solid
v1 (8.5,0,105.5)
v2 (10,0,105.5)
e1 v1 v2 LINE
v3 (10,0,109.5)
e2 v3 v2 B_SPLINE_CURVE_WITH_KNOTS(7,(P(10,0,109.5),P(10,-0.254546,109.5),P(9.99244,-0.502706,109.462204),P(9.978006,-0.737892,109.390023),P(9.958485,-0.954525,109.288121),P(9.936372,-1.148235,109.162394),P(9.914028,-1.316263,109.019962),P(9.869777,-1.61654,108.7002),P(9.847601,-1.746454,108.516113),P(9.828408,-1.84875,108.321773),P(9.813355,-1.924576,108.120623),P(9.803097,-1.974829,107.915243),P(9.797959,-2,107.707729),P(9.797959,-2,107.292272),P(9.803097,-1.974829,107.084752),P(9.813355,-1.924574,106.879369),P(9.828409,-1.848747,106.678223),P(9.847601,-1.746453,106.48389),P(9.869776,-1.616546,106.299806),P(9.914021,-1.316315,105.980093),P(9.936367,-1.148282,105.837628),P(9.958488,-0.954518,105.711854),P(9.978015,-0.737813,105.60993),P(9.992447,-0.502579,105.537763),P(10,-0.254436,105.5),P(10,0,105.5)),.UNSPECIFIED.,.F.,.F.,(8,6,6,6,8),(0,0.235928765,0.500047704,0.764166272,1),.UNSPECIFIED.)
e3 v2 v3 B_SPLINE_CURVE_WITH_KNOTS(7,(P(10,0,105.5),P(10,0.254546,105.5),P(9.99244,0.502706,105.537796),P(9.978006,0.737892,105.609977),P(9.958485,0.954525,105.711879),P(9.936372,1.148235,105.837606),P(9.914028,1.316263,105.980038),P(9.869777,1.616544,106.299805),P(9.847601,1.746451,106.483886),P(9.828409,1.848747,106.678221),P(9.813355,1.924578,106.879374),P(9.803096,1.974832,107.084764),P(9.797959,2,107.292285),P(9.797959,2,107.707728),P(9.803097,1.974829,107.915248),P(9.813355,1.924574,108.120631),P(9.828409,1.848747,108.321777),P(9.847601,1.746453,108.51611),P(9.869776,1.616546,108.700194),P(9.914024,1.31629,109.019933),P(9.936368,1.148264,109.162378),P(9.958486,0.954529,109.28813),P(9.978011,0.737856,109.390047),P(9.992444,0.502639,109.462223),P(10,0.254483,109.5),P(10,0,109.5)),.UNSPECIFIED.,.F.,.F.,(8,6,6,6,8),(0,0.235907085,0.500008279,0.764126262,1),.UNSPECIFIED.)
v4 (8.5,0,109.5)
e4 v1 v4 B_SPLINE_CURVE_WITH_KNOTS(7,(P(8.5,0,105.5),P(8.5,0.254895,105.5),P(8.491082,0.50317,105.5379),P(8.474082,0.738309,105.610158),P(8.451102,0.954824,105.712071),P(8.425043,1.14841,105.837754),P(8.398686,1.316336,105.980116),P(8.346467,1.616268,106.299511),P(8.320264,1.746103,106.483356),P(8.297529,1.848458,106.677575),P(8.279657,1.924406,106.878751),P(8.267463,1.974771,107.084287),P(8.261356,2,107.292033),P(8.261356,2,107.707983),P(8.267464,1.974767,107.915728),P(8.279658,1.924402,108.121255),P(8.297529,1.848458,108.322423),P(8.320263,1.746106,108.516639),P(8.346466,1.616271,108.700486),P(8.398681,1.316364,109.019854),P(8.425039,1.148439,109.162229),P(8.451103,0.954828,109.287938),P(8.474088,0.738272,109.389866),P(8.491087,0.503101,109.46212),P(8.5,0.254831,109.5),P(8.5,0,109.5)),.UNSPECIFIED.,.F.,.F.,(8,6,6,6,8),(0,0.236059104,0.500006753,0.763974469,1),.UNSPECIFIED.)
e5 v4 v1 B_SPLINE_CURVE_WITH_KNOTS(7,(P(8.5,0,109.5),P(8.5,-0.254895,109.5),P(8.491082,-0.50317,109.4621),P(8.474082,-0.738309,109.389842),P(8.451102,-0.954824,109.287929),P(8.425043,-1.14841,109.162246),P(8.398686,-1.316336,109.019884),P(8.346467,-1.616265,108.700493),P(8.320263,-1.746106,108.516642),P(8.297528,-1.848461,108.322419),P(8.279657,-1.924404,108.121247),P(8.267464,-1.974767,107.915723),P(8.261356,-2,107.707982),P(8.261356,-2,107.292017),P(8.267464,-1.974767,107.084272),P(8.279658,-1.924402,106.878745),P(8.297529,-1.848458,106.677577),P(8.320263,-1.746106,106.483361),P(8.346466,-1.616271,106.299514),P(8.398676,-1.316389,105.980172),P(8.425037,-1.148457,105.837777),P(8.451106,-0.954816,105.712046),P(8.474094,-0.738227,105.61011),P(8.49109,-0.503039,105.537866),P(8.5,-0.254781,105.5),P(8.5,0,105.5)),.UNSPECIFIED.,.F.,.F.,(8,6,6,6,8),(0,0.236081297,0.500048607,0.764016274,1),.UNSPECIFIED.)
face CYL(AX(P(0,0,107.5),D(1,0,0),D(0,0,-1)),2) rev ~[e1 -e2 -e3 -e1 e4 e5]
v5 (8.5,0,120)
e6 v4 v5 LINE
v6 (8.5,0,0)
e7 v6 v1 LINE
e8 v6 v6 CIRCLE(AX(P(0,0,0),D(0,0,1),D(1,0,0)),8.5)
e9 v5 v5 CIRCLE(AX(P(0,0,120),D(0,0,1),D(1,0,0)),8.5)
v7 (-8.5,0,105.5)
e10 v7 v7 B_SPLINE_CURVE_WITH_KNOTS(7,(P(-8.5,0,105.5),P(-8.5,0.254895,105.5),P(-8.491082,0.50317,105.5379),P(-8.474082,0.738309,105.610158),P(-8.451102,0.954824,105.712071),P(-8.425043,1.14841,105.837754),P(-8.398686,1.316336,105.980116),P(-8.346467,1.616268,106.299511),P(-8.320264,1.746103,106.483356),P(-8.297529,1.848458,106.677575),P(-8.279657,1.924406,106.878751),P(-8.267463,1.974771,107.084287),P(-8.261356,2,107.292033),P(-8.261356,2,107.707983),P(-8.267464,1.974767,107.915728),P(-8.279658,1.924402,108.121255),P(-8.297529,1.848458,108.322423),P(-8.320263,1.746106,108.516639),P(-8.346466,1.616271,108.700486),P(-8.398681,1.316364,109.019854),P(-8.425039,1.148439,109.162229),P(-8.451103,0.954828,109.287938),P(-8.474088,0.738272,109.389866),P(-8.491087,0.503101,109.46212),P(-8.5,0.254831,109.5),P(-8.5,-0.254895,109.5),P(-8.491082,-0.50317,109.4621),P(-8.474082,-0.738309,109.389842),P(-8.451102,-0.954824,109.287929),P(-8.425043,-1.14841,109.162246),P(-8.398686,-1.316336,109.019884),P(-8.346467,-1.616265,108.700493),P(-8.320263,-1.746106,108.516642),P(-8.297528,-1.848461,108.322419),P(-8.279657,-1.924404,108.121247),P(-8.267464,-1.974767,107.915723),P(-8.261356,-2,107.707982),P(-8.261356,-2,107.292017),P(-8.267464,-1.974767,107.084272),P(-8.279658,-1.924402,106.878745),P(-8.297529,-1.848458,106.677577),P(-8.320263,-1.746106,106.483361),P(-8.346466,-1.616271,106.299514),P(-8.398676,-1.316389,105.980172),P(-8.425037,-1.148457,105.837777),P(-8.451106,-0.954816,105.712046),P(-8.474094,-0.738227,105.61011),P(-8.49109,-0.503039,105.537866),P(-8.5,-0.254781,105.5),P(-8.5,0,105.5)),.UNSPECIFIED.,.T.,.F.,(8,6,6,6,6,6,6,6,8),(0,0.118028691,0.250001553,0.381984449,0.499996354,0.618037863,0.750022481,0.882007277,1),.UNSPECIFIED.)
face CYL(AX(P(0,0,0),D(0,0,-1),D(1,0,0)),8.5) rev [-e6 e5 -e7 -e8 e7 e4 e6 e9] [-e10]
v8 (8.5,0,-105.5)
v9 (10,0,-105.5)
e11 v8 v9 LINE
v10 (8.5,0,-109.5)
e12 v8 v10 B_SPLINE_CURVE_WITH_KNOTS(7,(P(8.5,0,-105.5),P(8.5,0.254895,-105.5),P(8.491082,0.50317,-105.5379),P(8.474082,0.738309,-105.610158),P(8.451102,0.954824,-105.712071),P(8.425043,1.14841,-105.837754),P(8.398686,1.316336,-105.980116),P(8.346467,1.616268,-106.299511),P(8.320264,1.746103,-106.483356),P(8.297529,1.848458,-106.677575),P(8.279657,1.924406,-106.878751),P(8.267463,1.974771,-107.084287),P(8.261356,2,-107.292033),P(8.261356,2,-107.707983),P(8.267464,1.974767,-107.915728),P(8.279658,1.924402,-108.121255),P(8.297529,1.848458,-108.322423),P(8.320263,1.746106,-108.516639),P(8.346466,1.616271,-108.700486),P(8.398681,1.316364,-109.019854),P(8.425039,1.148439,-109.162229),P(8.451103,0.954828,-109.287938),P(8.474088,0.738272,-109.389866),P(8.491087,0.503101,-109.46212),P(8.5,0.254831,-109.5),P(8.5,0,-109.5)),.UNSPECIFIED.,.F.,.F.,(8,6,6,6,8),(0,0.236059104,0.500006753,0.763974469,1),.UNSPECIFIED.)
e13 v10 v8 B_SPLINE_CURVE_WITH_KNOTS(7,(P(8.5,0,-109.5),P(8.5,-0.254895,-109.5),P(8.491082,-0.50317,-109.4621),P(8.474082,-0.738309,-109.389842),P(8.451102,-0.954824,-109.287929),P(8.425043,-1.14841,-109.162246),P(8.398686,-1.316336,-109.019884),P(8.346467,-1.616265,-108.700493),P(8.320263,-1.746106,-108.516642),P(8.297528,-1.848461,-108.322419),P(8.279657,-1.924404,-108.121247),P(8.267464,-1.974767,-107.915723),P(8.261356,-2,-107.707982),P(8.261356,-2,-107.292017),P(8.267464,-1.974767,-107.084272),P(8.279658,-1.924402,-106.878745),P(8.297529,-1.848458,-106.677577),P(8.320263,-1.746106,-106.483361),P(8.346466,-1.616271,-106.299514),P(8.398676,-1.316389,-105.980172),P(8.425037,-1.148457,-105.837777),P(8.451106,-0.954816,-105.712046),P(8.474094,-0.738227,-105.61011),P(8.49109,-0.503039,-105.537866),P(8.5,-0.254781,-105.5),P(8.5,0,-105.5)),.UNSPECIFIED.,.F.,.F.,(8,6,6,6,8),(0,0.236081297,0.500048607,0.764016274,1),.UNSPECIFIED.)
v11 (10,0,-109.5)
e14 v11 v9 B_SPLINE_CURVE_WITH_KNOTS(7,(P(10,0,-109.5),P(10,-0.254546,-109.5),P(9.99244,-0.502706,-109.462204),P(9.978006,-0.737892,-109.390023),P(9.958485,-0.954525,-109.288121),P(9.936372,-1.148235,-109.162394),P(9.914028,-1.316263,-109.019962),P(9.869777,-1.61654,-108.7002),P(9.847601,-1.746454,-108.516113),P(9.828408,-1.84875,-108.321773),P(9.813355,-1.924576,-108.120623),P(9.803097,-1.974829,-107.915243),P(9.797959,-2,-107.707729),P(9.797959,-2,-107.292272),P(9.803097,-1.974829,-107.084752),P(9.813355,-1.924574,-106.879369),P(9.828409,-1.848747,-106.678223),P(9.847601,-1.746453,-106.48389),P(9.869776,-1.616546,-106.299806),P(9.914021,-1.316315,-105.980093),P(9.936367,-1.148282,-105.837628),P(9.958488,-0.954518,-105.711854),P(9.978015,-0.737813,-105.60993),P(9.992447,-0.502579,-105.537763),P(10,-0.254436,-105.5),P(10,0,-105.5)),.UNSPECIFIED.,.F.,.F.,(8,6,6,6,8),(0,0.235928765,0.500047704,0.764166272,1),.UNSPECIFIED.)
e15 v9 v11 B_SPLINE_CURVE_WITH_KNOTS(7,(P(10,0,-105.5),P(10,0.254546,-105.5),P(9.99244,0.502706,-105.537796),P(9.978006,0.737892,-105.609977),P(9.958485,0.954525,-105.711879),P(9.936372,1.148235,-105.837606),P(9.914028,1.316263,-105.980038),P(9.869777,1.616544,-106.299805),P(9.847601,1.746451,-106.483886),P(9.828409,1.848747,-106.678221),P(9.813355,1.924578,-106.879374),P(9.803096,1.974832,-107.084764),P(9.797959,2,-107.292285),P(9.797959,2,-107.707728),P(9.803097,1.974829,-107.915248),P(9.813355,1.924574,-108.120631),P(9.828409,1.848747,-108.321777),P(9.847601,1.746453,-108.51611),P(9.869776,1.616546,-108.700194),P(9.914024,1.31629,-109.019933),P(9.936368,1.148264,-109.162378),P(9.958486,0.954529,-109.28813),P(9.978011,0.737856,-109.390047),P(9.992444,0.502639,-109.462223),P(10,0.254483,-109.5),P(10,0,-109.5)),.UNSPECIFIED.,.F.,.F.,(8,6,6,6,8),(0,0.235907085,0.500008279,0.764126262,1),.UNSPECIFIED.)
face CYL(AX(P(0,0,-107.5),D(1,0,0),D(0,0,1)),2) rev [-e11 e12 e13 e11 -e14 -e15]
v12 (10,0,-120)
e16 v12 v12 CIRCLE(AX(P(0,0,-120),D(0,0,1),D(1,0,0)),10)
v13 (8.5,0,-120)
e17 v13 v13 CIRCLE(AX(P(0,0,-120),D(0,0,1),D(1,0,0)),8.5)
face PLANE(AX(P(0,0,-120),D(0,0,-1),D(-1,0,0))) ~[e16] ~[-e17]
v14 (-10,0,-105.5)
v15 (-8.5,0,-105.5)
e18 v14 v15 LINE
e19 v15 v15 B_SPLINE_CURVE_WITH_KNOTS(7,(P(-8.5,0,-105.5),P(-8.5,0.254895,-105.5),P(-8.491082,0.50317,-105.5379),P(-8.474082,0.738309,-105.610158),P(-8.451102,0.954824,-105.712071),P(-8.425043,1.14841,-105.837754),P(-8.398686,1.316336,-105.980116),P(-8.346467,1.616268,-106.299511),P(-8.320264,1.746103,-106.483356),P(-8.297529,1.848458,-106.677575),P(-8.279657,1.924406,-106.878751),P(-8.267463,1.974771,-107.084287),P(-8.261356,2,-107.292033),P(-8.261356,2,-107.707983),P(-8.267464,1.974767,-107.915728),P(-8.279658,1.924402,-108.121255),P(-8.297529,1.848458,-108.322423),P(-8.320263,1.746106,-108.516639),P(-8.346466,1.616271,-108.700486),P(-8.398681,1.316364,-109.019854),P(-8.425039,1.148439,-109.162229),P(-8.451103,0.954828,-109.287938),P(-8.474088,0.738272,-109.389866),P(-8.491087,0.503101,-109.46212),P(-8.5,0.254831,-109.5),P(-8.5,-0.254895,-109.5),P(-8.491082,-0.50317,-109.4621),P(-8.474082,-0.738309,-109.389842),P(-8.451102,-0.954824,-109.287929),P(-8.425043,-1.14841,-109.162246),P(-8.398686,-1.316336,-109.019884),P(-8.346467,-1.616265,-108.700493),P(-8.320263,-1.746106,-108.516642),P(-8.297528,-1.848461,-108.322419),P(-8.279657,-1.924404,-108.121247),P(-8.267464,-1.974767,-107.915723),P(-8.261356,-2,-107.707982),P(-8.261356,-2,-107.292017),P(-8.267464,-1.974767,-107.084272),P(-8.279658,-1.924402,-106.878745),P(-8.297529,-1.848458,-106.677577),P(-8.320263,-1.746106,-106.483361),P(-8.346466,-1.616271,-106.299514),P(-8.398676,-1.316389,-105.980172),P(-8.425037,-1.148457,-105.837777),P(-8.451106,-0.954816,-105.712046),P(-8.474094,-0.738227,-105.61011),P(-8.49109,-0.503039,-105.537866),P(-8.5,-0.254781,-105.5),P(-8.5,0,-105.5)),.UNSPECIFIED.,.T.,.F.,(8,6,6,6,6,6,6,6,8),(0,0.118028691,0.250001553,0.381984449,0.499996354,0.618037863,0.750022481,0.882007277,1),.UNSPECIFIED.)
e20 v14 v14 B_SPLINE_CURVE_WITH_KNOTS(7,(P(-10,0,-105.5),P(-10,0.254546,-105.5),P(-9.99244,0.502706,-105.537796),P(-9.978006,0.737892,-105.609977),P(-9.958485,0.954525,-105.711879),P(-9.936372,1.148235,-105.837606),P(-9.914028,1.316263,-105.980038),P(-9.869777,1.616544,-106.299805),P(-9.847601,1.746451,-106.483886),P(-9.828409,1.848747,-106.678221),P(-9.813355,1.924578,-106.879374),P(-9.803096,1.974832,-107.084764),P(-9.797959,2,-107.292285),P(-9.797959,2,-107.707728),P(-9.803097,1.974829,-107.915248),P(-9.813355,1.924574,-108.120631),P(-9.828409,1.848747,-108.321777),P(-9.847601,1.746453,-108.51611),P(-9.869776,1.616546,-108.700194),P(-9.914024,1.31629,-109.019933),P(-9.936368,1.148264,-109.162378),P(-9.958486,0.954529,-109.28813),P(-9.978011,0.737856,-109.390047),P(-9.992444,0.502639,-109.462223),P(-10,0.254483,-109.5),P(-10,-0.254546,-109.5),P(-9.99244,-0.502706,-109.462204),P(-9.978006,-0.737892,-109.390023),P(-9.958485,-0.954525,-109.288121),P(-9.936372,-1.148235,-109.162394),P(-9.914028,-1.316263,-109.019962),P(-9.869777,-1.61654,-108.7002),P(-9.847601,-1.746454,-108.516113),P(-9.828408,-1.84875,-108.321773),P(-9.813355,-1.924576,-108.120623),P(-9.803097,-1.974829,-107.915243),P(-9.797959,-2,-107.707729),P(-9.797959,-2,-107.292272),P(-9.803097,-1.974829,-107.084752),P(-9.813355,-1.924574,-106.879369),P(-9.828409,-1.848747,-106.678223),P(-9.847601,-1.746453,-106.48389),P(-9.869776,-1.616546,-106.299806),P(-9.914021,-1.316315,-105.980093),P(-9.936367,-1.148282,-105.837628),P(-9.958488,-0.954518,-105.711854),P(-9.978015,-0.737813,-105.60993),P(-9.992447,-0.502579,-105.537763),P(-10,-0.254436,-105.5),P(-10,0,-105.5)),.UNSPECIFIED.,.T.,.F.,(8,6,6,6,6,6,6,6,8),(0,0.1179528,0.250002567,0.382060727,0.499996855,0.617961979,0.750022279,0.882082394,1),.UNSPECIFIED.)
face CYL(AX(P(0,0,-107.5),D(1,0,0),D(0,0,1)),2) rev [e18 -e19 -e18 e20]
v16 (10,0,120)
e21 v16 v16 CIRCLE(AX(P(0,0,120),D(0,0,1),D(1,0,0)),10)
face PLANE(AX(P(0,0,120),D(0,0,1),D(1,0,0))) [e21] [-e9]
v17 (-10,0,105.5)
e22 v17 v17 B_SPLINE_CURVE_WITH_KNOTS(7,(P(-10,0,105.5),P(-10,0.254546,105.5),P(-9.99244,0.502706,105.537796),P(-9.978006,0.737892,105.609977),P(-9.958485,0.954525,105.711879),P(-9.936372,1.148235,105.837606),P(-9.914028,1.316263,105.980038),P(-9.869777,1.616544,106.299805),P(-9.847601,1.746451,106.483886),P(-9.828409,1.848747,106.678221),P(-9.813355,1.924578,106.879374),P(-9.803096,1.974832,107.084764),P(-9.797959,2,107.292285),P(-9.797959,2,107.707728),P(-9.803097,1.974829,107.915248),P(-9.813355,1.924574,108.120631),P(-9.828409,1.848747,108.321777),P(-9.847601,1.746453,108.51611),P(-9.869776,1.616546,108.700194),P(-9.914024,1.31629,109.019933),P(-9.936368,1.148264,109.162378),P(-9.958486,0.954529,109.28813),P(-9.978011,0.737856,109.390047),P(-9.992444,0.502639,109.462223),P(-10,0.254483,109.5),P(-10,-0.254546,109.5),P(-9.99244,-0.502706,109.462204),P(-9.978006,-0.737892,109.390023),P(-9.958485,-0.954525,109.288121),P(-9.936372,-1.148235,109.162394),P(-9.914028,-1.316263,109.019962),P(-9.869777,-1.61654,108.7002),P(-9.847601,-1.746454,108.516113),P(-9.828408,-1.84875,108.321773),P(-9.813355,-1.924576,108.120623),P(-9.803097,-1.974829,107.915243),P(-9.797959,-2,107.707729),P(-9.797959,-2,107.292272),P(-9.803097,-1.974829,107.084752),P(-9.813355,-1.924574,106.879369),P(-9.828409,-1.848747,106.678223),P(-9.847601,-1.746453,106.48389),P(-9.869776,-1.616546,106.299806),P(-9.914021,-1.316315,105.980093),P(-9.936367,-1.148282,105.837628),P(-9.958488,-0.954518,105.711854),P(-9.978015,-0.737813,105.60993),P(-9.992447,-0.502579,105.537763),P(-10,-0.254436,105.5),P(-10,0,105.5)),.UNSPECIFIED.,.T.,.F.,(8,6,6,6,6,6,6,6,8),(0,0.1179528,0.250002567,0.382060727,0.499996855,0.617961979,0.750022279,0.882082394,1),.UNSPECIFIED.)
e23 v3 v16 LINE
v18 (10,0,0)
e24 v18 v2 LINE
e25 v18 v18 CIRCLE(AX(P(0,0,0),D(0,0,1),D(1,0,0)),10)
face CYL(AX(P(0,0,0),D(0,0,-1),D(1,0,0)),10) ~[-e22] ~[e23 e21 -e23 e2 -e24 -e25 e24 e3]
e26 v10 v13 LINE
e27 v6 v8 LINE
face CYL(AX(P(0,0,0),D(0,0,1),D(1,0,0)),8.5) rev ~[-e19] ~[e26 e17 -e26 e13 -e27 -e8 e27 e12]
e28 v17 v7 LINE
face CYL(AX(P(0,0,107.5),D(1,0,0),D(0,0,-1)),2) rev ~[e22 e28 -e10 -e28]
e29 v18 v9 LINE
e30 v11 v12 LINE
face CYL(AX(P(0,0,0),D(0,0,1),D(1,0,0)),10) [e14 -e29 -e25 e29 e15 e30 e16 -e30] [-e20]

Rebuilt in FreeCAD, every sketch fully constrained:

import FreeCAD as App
import Part
import Sketcher

V = App.Vector
Q = App.Units.Quantity

doc = App.newDocument("Part")
body = doc.addObject("PartDesign::Body", "Body")

# Sketch on XY plane
sketch1 = doc.addObject("Sketcher::SketchObject", "Sketch")
body.addObject(sketch1)
sketch1.AttachmentSupport = (doc.XY_Plane, [""])
sketch1.MapMode = "FlatFace"
sketch1.addGeometry(Part.Circle(V(0, 0, 0), V(0, 0, 1), 10), False)
sketch1.addGeometry(Part.Circle(V(0, 0, 0), V(0, 0, 1), 8), False)
sketch1.addConstraint(Sketcher.Constraint("Coincident", 0, 3, -1, 1))
sketch1.addConstraint(Sketcher.Constraint("Coincident", 1, 3, -1, 1))
sketch1.addConstraint(Sketcher.Constraint("Diameter", 0, Q("20 mm")))
sketch1.addConstraint(Sketcher.Constraint("Diameter", 1, Q("17 mm")))
pad1 = doc.addObject("PartDesign::Pad", "Pad")
body.addObject(pad1)
pad1.Profile = sketch1
pad1.Length = 120

# Sketch on YZ plane
sketch2 = doc.addObject("Sketcher::SketchObject", "Sketch001")
body.addObject(sketch2)
sketch2.AttachmentSupport = (doc.YZ_Plane, [""])
sketch2.MapMode = "FlatFace"
sketch2.addGeometry(Part.Circle(V(0, 107.5, 0), V(0, 0, 1), 2), False)
sketch2.addConstraint(Sketcher.Constraint("PointOnObject", 0, 3, -2))
sketch2.addConstraint(Sketcher.Constraint("Diameter", 0, Q("4 mm")))
sketch2.addConstraint(Sketcher.Constraint("DistanceY", -1, 1, 0, 3, Q("107.5 mm")))
pocket1 = doc.addObject("PartDesign::Pocket", "Pocket")
body.addObject(pocket1)
pocket1.Profile = sketch2
pocket1.Length = 243.660919
pocket1.Midplane = True
doc.recompute()

mirrored = doc.addObject("PartDesign::Mirrored", "Mirrored")
body.addObject(mirrored)
mirrored.Originals = [pad1, pocket1]
mirrored.MirrorPlane = (doc.XY_Plane, [""])
body.Tip = mirrored

doc.recompute()
